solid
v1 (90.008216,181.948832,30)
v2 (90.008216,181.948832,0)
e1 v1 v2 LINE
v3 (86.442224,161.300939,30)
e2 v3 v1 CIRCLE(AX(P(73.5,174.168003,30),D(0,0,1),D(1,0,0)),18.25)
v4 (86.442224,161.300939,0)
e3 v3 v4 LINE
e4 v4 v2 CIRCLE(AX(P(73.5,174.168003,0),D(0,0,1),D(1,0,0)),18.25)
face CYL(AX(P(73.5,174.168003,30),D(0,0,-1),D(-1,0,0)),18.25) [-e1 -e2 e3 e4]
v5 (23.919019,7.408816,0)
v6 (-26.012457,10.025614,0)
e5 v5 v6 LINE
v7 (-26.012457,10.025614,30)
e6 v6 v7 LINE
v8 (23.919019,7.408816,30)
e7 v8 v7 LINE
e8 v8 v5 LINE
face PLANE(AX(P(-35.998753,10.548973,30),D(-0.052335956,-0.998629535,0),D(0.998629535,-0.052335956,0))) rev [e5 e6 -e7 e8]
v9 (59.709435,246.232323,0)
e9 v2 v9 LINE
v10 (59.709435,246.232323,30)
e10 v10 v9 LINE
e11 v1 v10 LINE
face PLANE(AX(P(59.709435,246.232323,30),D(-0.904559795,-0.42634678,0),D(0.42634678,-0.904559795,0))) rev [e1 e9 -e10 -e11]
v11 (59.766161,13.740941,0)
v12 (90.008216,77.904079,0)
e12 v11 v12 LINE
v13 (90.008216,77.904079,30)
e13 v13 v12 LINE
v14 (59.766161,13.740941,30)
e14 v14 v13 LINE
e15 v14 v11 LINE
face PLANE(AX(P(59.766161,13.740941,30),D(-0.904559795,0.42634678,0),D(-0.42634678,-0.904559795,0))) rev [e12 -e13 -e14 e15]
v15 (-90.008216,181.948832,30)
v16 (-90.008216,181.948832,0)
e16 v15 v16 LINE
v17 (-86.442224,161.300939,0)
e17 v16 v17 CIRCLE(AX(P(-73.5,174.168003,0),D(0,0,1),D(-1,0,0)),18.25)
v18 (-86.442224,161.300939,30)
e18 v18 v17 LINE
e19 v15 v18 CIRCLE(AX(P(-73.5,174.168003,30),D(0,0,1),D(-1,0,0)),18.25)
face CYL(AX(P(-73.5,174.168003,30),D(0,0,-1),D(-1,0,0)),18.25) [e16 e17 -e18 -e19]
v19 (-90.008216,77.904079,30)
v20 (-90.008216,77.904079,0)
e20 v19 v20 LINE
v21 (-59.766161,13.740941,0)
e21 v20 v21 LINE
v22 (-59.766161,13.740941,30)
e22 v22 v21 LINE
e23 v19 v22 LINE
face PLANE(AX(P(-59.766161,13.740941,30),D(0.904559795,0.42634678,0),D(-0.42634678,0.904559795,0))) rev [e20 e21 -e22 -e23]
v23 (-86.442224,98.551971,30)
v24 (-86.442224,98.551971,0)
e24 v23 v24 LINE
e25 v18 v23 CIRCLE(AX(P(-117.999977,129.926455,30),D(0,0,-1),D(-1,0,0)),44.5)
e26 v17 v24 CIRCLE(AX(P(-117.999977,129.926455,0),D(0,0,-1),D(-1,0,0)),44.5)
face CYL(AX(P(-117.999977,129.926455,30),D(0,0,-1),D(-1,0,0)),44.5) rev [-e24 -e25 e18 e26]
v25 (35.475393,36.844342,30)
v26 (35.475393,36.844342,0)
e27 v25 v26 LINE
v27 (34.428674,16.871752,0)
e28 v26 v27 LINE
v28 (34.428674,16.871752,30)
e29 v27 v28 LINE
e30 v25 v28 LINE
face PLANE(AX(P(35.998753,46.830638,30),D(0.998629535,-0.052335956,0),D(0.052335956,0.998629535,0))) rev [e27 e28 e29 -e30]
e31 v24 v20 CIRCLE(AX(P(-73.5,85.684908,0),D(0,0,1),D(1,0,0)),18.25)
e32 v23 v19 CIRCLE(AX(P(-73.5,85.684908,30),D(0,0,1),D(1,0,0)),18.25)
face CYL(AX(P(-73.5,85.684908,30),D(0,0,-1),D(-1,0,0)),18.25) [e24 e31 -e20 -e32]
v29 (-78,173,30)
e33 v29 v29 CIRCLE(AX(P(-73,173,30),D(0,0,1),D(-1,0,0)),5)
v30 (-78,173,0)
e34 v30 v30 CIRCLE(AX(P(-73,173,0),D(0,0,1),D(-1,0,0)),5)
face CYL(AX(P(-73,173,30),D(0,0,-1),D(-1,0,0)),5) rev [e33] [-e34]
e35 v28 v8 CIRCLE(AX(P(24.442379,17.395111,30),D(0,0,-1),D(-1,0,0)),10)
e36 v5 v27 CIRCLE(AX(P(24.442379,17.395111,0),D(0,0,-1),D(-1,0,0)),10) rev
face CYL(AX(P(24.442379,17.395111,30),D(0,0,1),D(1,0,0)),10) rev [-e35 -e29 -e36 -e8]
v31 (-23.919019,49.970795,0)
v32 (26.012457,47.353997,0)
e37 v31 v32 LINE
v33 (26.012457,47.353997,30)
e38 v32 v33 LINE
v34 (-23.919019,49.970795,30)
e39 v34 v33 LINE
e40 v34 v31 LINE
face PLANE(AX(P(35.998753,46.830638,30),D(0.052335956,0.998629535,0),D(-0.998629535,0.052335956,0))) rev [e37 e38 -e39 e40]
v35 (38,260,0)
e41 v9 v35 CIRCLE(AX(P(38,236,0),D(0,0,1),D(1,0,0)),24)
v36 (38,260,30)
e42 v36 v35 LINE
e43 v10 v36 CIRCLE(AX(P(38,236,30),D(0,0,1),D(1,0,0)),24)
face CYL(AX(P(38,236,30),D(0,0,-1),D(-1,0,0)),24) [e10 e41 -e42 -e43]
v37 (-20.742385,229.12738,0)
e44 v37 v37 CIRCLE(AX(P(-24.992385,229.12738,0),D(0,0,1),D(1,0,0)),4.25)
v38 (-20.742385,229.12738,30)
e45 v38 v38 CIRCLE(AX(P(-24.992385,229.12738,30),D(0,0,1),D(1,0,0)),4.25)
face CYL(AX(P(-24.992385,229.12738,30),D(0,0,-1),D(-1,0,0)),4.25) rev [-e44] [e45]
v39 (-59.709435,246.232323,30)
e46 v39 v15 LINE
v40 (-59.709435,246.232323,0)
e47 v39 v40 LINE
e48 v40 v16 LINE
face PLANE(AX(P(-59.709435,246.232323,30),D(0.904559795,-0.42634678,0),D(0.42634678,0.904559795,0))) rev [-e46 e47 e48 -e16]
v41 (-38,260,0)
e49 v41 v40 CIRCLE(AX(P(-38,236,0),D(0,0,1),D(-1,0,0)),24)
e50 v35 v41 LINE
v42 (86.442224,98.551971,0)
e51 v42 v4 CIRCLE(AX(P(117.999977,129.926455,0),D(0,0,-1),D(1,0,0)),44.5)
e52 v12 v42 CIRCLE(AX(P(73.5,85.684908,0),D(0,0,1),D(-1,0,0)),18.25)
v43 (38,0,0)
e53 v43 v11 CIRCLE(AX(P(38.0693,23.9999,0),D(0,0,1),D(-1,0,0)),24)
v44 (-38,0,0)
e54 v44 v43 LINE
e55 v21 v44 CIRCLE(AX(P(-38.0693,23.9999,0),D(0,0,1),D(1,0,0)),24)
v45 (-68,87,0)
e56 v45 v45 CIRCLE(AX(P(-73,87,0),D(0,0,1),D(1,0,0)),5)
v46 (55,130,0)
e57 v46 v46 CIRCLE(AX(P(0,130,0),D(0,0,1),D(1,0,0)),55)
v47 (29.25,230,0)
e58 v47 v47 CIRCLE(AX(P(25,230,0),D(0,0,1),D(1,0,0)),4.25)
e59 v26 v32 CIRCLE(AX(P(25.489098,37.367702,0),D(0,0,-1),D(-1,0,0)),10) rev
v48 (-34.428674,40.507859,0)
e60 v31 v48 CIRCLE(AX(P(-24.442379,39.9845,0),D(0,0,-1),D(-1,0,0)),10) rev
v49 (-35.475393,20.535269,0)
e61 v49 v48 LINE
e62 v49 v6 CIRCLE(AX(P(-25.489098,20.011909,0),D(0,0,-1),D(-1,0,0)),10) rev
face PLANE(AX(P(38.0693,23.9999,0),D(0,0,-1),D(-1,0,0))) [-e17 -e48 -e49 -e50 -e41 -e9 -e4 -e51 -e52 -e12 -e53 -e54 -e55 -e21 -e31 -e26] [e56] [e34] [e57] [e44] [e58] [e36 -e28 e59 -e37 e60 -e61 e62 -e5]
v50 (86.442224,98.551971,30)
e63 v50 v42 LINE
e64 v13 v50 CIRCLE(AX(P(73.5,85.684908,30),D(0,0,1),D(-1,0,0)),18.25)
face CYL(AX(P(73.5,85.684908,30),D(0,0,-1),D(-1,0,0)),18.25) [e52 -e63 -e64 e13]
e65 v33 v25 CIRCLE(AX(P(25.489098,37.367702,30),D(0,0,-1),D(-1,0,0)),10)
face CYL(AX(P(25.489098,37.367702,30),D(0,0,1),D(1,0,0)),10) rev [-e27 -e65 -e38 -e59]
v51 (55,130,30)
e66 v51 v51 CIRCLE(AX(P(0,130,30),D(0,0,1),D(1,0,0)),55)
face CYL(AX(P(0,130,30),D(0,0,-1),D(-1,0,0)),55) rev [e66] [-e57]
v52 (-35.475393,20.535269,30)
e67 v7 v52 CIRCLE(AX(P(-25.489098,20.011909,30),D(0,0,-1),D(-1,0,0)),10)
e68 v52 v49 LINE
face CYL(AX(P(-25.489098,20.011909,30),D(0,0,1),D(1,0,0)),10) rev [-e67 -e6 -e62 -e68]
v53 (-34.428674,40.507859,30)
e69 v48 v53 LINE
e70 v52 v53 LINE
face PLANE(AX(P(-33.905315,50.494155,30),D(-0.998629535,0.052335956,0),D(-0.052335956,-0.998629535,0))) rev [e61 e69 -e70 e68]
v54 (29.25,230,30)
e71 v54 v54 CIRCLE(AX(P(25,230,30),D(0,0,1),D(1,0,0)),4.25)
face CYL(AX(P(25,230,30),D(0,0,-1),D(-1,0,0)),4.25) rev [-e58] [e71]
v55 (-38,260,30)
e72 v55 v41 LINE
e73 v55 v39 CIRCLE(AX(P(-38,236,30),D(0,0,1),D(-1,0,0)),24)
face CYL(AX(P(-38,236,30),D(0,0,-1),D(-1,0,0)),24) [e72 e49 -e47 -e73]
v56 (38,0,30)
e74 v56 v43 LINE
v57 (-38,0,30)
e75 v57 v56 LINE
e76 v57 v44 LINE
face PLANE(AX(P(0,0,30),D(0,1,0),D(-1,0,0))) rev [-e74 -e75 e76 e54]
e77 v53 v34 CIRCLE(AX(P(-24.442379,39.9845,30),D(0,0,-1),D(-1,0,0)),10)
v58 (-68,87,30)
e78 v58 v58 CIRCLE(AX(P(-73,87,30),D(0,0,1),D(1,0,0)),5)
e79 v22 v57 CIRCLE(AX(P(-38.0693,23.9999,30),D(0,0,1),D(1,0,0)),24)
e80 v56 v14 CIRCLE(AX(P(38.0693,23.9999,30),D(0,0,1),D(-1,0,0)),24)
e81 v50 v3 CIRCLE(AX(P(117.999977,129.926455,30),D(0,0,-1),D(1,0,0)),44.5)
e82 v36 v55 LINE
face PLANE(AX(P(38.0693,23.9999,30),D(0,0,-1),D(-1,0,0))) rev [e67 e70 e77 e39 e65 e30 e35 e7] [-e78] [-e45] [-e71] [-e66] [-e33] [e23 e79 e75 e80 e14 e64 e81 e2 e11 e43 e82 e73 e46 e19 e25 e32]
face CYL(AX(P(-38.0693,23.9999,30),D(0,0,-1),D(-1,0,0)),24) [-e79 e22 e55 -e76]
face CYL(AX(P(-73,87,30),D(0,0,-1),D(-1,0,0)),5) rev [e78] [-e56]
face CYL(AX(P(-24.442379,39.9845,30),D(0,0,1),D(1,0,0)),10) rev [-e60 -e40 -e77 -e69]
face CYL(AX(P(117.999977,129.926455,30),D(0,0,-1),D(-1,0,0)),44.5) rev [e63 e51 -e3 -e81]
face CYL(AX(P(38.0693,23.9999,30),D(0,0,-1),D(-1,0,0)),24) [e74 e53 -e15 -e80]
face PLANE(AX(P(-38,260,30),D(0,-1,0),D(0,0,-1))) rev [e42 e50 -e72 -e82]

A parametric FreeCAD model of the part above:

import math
import FreeCAD as App
import Part
import Sketcher

V = App.Vector
Q = App.Units.Quantity


def edges_at(feature, points):
    """Names of the edges that pass closest to the given points."""
    edges = feature.Shape.Edges
    near = lambda p: min(range(len(edges)), key=lambda i: edges[i].distToShape(Part.Vertex(*p))[0])
    return sorted({f"Edge{near(p) + 1}" for p in points})


def add_polygon(sketch, points):
    """Adds a closed chain of lines whose ends are joined by coincident constraints."""
    first, n = sketch.GeometryCount, len(points)
    for a, b in zip(points, points[1:] + points[:1]):
        sketch.addGeometry(Part.LineSegment(App.Vector(*a, 0), App.Vector(*b, 0)), False)
    for i in range(n):
        sketch.addConstraint(Sketcher.Constraint("Coincident", first + i, 2, first + (i + 1) % n, 1))

doc = App.newDocument("Part")
body = doc.addObject("PartDesign::Body", "Body")

# Sketch on XY plane
sketch1 = doc.addObject("Sketcher::SketchObject", "Sketch")
body.addObject(sketch1)
sketch1.AttachmentSupport = (doc.XY_Plane, [""])
sketch1.MapMode = "FlatFace"
sketch1.addGeometry(Part.LineSegment(V(38, 260, 0), V(-38, 260, 0)), False)
sketch1.addGeometry(Part.ArcOfCircle(Part.Circle(V(-38, 236, 0), V(0, 0, 1), 24), math.radians(90), math.radians(154.76406)), False)
sketch1.addGeometry(Part.LineSegment(V(-59.709435, 246.232323, 0), V(-90.008216, 181.948832, 0)), False)
sketch1.addGeometry(Part.ArcOfCircle(Part.Circle(V(-73.5, 174.168003, 0), V(0, 0, 1), 18.25), math.radians(154.76406), math.radians(224.833146)), False)
sketch1.addGeometry(Part.ArcOfCircle(Part.Circle(V(-117.999977, 129.926455, 0), V(0, 0, 1), 44.5), math.radians(-44.833146), math.radians(44.833146)), False)
sketch1.addGeometry(Part.ArcOfCircle(Part.Circle(V(-73.5, 85.684908, 0), V(0, 0, 1), 18.25), math.radians(135.166854), math.radians(205.23594)), False)
sketch1.addGeometry(Part.LineSegment(V(-90.008216, 77.904079, 0), V(-59.766161, 13.740941, 0)), False)
sketch1.addGeometry(Part.ArcOfCircle(Part.Circle(V(-38.0693, 23.9999, 0), V(0, 0, 1), 24), math.radians(-154.69374), math.radians(-89.834557)), False)
sketch1.addGeometry(Part.LineSegment(V(-38, 0, 0), V(38, 0, 0)), False)
sketch1.addGeometry(Part.ArcOfCircle(Part.Circle(V(38.0693, 23.9999, 0), V(0, 0, 1), 24), math.radians(-90.165443), math.radians(-25.30626)), False)
sketch1.addGeometry(Part.LineSegment(V(59.766161, 13.740941, 0), V(90.008216, 77.904079, 0)), False)
sketch1.addGeometry(Part.ArcOfCircle(Part.Circle(V(73.5, 85.684908, 0), V(0, 0, 1), 18.25), math.radians(-25.23594), math.radians(44.833146)), False)
sketch1.addGeometry(Part.ArcOfCircle(Part.Circle(V(117.999977, 129.926455, 0), V(0, 0, 1), 44.5), math.radians(135.166854), math.radians(224.833146)), False)
sketch1.addGeometry(Part.ArcOfCircle(Part.Circle(V(73.5, 174.168003, 0), V(0, 0, 1), 18.25), math.radians(-44.833146), math.radians(25.23594)), False)
sketch1.addGeometry(Part.LineSegment(V(90.008216, 181.948832, 0), V(59.709435, 246.232323, 0)), False)
sketch1.addGeometry(Part.ArcOfCircle(Part.Circle(V(38, 236, 0), V(0, 0, 1), 24), math.radians(25.23594), math.radians(90)), False)
sketch1.addGeometry(Part.Circle(V(24.931477, 27.383202, 0), V(0, 0, 1), 4.25), False)
sketch1.addGeometry(Part.Circle(V(-25, 30, 0), V(0, 0, 1), 4.25), False)
sketch1.addGeometry(Part.Circle(V(-73, 87, 0), V(0, 0, 1), 5), False)
sketch1.addGeometry(Part.Circle(V(0, 130, 0), V(0, 0, 1), 55), False)
sketch1.addGeometry(Part.Circle(V(25, 230, 0), V(0, 0, 1), 4.25), False)
sketch1.addGeometry(Part.Circle(V(-73, 173, 0), V(0, 0, 1), 5), False)
sketch1.addGeometry(Part.Circle(V(-24.992385, 229.12738, 0), V(0, 0, 1), 4.25), False)
sketch1.addConstraint(Sketcher.Constraint("Tangent", 0, 2, 1, 1))
sketch1.addConstraint(Sketcher.Constraint("Tangent", 1, 2, 2, 1))
sketch1.addConstraint(Sketcher.Constraint("Tangent", 2, 2, 3, 1))
sketch1.addConstraint(Sketcher.Constraint("Tangent", 3, 2, 4, 2))
sketch1.addConstraint(Sketcher.Constraint("Tangent", 4, 1, 5, 1))
sketch1.addConstraint(Sketcher.Constraint("Tangent", 5, 2, 6, 1))
sketch1.addConstraint(Sketcher.Constraint("Coincident", 6, 2, 7, 1))
sketch1.addConstraint(Sketcher.Constraint("Coincident", 7, 2, 8, 1))
sketch1.addConstraint(Sketcher.Constraint("Coincident", 8, 2, 9, 1))
sketch1.addConstraint(Sketcher.Constraint("Coincident", 9, 2, 10, 1))
sketch1.addConstraint(Sketcher.Constraint("Tangent", 10, 2, 11, 1))
sketch1.addConstraint(Sketcher.Constraint("Tangent", 11, 2, 12, 2))
sketch1.addConstraint(Sketcher.Constraint("Tangent", 12, 1, 13, 1))
sketch1.addConstraint(Sketcher.Constraint("Tangent", 13, 2, 14, 1))
sketch1.addConstraint(Sketcher.Constraint("Tangent", 14, 2, 15, 1))
sketch1.addConstraint(Sketcher.Constraint("Tangent", 15, 2, 0, 1))
sketch1.addConstraint(Sketcher.Constraint("Horizontal", 0))
sketch1.addConstraint(Sketcher.Constraint("Horizontal", 8))
sketch1.addConstraint(Sketcher.Constraint("Equal", 3, 5))
sketch1.addConstraint(Sketcher.Constraint("Equal", 1, 7))
sketch1.addConstraint(Sketcher.Constraint("Equal", 7, 9))
sketch1.addConstraint(Sketcher.Constraint("Equal", 5, 11))
sketch1.addConstraint(Sketcher.Constraint("Equal", 4, 12))
sketch1.addConstraint(Sketcher.Constraint("Equal", 11, 13))
sketch1.addConstraint(Sketcher.Constraint("Equal", 9, 15))
sketch1.addConstraint(Sketcher.Constraint("Equal", 16, 17))
sketch1.addConstraint(Sketcher.Constraint("Equal", 17, 20))
sketch1.addConstraint(Sketcher.Constraint("Equal", 18, 21))
sketch1.addConstraint(Sketcher.Constraint("Equal", 20, 22))
sketch1.addConstraint(Sketcher.Constraint("Symmetric", 7, 2, 8, 2, -1, 1))
sketch1.addConstraint(Sketcher.Constraint("Symmetric", 5, 3, 11, 3, -2))
sketch1.addConstraint(Sketcher.Constraint("Symmetric", 3, 3, 13, 3, -2))
sketch1.addConstraint(Sketcher.Constraint("Symmetric", 6, 2, 9, 2, -2))
sketch1.addConstraint(Sketcher.Constraint("PointOnObject", 19, 3, -2))
sketch1.addConstraint(Sketcher.Constraint("Parallel", 2, 10))
sketch1.addConstraint(Sketcher.Constraint("Parallel", 6, 14))
sketch1.addConstraint(Sketcher.Constraint("Vertical", 3, 3, 5, 3))
sketch1.addConstraint(Sketcher.Constraint("Vertical", 18, 3, 21, 3))
sketch1.addConstraint(Sketcher.Constraint("Vertical", 0, 2, 7, 2))
sketch1.addConstraint(Sketcher.Constraint("Diameter", 18, Q("10 mm")))
sketch1.addConstraint(Sketcher.Constraint("Diameter", 19, Q("110 mm")))
sketch1.addConstraint(Sketcher.Constraint("Radius", 1, Q("24 mm")))
sketch1.addConstraint(Sketcher.Constraint("Diameter", 16, Q("8.5 mm")))
sketch1.addConstraint(Sketcher.Constraint("Radius", 4, Q("44.5 mm")))
sketch1.addConstraint(Sketcher.Constraint("DistanceX", 0, 2, 0, 1, Q("76 mm")))
sketch1.addConstraint(Sketcher.Constraint("Radius", 3, Q("18.25 mm")))
sketch1.addConstraint(Sketcher.Constraint("DistanceY", -1, 1, 1, 3, Q("236 mm")))
sketch1.addConstraint(Sketcher.Constraint("DistanceX", 17, 3, -1, 1, Q("25 mm")))
sketch1.addConstraint(Sketcher.Constraint("DistanceY", -1, 1, 17, 3, Q("30 mm")))
sketch1.addConstraint(Sketcher.Constraint("DistanceX", 18, 3, -1, 1, Q("73 mm")))
sketch1.addConstraint(Sketcher.Constraint("DistanceY", -1, 1, 18, 3, Q("87 mm")))
sketch1.addConstraint(Sketcher.Constraint("DistanceY", -1, 1, 19, 3, Q("130 mm")))
sketch1.addConstraint(Sketcher.Constraint("DistanceX", -1, 1, 20, 3, Q("25 mm")))
sketch1.addConstraint(Sketcher.Constraint("DistanceY", -1, 1, 20, 3, Q("230 mm")))
sketch1.addConstraint(Sketcher.Constraint("DistanceY", -1, 1, 21, 3, Q("173 mm")))
sketch1.addConstraint(Sketcher.Constraint("DistanceX", 5, 3, 11, 3, Q("147 mm")))
sketch1.addConstraint(Sketcher.Constraint("Distance", 6, Q("70.932998 mm")))
sketch1.addConstraint(Sketcher.Constraint("DistanceX", 7, 3, -1, 1, Q("38.0693 mm")))
sketch1.addConstraint(Sketcher.Constraint("DistanceX", 16, 3, 12, 3, Q("93.0685 mm")))
sketch1.addConstraint(Sketcher.Constraint("Distance", 2, Q("71.066049 mm")))
sketch1.addConstraint(Sketcher.Constraint("DistanceY", -1, 1, 22, 3, Q("229.12738 mm")))
sketch1.addConstraint(Sketcher.Constraint("DistanceX", 1, 2, 22, 3, Q("34.71705 mm")))
sketch1.addConstraint(Sketcher.Constraint("DistanceY", 9, 2, 16, 3, Q("13.642262 mm")))
pad1 = doc.addObject("PartDesign::Pad", "Pad")
body.addObject(pad1)
pad1.Profile = sketch1
pad1.Length = 30

# Sketch on XY plane
sketch2 = doc.addObject("Sketcher::SketchObject", "Sketch001")
body.addObject(sketch2)
sketch2.AttachmentSupport = (doc.XY_Plane, [""])
sketch2.MapMode = "FlatFace"
add_polygon(sketch2, [(-35.998753, 10.548973), (-33.905315, 50.494155), (35.998753, 46.830638), (33.905315, 6.885456)])  # lines 0-3
sketch2.addConstraint(Sketcher.Constraint("Perpendicular", 0, 1))
sketch2.addConstraint(Sketcher.Constraint("Perpendicular", 1, 2))
sketch2.addConstraint(Sketcher.Constraint("Perpendicular", 2, 3))
sketch2.addConstraint(Sketcher.Constraint("Angle", 0, Q("87 deg")))
sketch2.addConstraint(Sketcher.Constraint("Distance", 0, Q("40 mm")))
sketch2.addConstraint(Sketcher.Constraint("Distance", 1, Q("70 mm")))
sketch2.addConstraint(Sketcher.Constraint("DistanceX", 0, 2, -1, 1, Q("33.905315 mm")))
sketch2.addConstraint(Sketcher.Constraint("DistanceY", -1, 1, 0, 2, Q("50.494155 mm")))
pocket1 = doc.addObject("PartDesign::Pocket", "Pocket")
body.addObject(pocket1)
pocket1.Profile = sketch2
pocket1.Length = 30
pocket1.Reversed = True
doc.recompute()

fillet = doc.addObject("PartDesign::Fillet", "Fillet")
body.addObject(fillet)
fillet.Base = (pocket1, edges_at(pocket1, [
    (35.999, 46.831, 15),
    (-33.905, 50.494, 15),
    (-35.999, 10.549, 15),
    (33.905, 6.885, 15),
]))
fillet.Radius = 10

doc.recompute()
